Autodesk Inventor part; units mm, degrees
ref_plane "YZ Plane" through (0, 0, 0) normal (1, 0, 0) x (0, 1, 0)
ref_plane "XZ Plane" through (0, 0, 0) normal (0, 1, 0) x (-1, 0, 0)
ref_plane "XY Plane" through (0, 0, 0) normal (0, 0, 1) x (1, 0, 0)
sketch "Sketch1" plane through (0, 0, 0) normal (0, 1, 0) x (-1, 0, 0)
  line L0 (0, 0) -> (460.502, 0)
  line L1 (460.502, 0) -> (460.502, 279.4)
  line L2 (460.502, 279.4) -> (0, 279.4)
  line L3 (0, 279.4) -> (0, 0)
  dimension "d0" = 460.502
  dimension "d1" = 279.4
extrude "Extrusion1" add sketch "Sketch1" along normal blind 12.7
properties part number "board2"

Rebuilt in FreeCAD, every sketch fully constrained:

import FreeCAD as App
import Part
import Sketcher
Q = App.Units.Quantity

doc = App.newDocument("Part")
body = doc.addObject("PartDesign::Body", "Body")

# Sketch on XZ plane
sketch1 = doc.addObject("Sketcher::SketchObject", "Sketch")
body.addObject(sketch1)
sketch1.AttachmentSupport = (doc.XZ_Plane, [""])
sketch1.MapMode = "FlatFace"
sketch1.addGeometry(Part.LineSegment(App.Vector(0, 279.4, 0), App.Vector(0, 0, 0)), False)
sketch1.addGeometry(Part.LineSegment(App.Vector(0, 0, 0), App.Vector(-460.502, 0, 0)), False)
sketch1.addGeometry(Part.LineSegment(App.Vector(-460.502, 0, 0), App.Vector(-460.502, 279.4, 0)), False)
sketch1.addGeometry(Part.LineSegment(App.Vector(-460.502, 279.4, 0), App.Vector(0, 279.4, 0)), False)
sketch1.addConstraint(Sketcher.Constraint("Coincident", 0, 2, 1, 1))
sketch1.addConstraint(Sketcher.Constraint("Coincident", 1, 2, 2, 1))
sketch1.addConstraint(Sketcher.Constraint("Coincident", 2, 2, 3, 1))
sketch1.addConstraint(Sketcher.Constraint("Coincident", 3, 2, 0, 1))
sketch1.addConstraint(Sketcher.Constraint("Vertical", 0))
sketch1.addConstraint(Sketcher.Constraint("Horizontal", 1))
sketch1.addConstraint(Sketcher.Constraint("Vertical", 2))
sketch1.addConstraint(Sketcher.Constraint("Horizontal", 3))
sketch1.addConstraint(Sketcher.Constraint("Coincident", 0, 2, -1, 1))
sketch1.addConstraint(Sketcher.Constraint("DistanceY", 0, 2, 0, 1, Q("11 in")))
sketch1.addConstraint(Sketcher.Constraint("DistanceX", 1, 2, 1, 1, Q("18.13 in")))
pad1 = doc.addObject("PartDesign::Pad", "Pad")
body.addObject(pad1)
pad1.Profile = sketch1
pad1.Length = Q("0.5 in")
pad1.Reversed = True

doc.recompute()
